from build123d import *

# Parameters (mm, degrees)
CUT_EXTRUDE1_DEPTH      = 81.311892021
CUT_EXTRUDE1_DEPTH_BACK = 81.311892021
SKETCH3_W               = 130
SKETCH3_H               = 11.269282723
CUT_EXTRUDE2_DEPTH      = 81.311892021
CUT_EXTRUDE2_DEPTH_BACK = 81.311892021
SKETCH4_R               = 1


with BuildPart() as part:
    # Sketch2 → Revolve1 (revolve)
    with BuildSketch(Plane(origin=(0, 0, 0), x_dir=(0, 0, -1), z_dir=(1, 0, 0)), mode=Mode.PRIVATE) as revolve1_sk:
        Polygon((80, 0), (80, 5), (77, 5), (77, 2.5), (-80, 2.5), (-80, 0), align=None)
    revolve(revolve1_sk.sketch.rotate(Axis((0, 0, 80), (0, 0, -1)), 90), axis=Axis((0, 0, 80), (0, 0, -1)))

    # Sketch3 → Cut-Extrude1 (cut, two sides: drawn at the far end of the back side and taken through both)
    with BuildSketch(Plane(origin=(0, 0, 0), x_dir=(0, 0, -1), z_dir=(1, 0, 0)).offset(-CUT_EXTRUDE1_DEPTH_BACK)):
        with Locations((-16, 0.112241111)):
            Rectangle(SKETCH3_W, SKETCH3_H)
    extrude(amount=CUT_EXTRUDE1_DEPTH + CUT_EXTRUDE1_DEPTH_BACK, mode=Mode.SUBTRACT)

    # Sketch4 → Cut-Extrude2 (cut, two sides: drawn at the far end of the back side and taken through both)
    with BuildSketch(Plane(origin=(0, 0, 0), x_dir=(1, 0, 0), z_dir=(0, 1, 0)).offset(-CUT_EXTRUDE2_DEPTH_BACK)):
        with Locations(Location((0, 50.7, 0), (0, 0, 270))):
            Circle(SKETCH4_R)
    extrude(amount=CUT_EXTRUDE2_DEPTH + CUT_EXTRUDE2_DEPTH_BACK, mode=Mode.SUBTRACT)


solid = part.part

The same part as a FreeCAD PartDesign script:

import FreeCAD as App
import Part
import Sketcher
from FreeCAD import Vector

doc = App.newDocument("Part")
body = doc.addObject("PartDesign::Body", "Body")

# Sketch on YZ plane
sketch1 = doc.addObject("Sketcher::SketchObject", "Sketch")
body.addObject(sketch1)
sketch1.AttachmentSupport = (doc.YZ_Plane, [""])
sketch1.MapMode = "FlatFace"
sketch1.addGeometry([
    Part.LineSegment(Vector(0, -80, 0), Vector(5, -80, 0)),  # 0
    Part.LineSegment(Vector(5, -80, 0), Vector(5, -77, 0)),  # 1
    Part.LineSegment(Vector(5, -77, 0), Vector(2.5, -77, 0)),  # 2
    Part.LineSegment(Vector(2.5, -77, 0), Vector(2.5, 80, 0)),  # 3
    Part.LineSegment(Vector(2.5, 80, 0), Vector(0, 80, 0)),  # 4
    Part.LineSegment(Vector(0, 80, 0), Vector(0, -80, 0)),  # 5
], False)
sketch1.addConstraint([
    Sketcher.Constraint("Coincident", 0, 2, 1, 1),
    Sketcher.Constraint("Coincident", 1, 2, 2, 1),
    Sketcher.Constraint("Coincident", 2, 2, 3, 1),
    Sketcher.Constraint("Coincident", 3, 2, 4, 1),
    Sketcher.Constraint("Coincident", 4, 2, 5, 1),
    Sketcher.Constraint("Coincident", 5, 2, 0, 1),
    Sketcher.Constraint("Horizontal", 0),
    Sketcher.Constraint("Vertical", 1),
    Sketcher.Constraint("Horizontal", 2),
    Sketcher.Constraint("Vertical", 3),
    Sketcher.Constraint("Horizontal", 4),
    Sketcher.Constraint("Vertical", 5),
    Sketcher.Constraint("Symmetric", 4, 2, 5, 2, -1, 1),
    Sketcher.Constraint("Equal", 2, 4),
    Sketcher.Constraint("DistanceX", 0, 1, 0, 2, 5.0),
    Sketcher.Constraint("DistanceY", 1, 1, 1, 2, 3.0),
    Sketcher.Constraint("DistanceY", 3, 1, 3, 2, 157.0),
])
revolution = doc.addObject("PartDesign::Revolution", "Revolution")
body.addObject(revolution)
revolution.Profile = sketch1
revolution.ReferenceAxis = (sketch1, ["V_Axis"])
revolution.Angle = 360

# Sketch on YZ plane
sketch2 = doc.addObject("Sketcher::SketchObject", "Sketch001")
body.addObject(sketch2)
sketch2.AttachmentSupport = (doc.YZ_Plane, [""])
sketch2.MapMode = "FlatFace"
sketch2.addGeometry([
    Part.LineSegment(Vector(5.746882, 81, 0), Vector(-5.5224, 81, 0)),
    Part.LineSegment(Vector(-5.5224, 81, 0), Vector(-5.5224, -49, 0)),
    Part.LineSegment(Vector(-5.5224, -49, 0), Vector(5.746882, -49, 0)),
    Part.LineSegment(Vector(5.746882, -49, 0), Vector(5.746882, 81, 0)),
], False)
sketch2.addConstraint([
    Sketcher.Constraint("Coincident", 0, 2, 1, 1),
    Sketcher.Constraint("Coincident", 1, 2, 2, 1),
    Sketcher.Constraint("Coincident", 2, 2, 3, 1),
    Sketcher.Constraint("Coincident", 3, 2, 0, 1),
    Sketcher.Constraint("Horizontal", 0),
    Sketcher.Constraint("Vertical", 1),
    Sketcher.Constraint("Horizontal", 2),
    Sketcher.Constraint("Vertical", 3),
    Sketcher.Constraint("DistanceY", 1, 2, 1, 1, 130.0),
    Sketcher.Constraint("DistanceY", -1, 1, 0, 2, 81.0),
    Sketcher.Constraint("DistanceX", 0, 2, -1, 1, 5.5224),
    Sketcher.Constraint("DistanceX", 0, 2, 0, 1, 11.269283),
])
pocket1 = doc.addObject("PartDesign::Pocket", "Pocket")
body.addObject(pocket1)
pocket1.Profile = sketch2
pocket1.Type = "ThroughAll"
pocket1.Midplane = True

# Sketch on XZ plane
sketch3 = doc.addObject("Sketcher::SketchObject", "Sketch002")
body.addObject(sketch3)
sketch3.AttachmentSupport = (doc.XZ_Plane, [""])
sketch3.MapMode = "FlatFace"
sketch3.addGeometry(Part.Circle(Vector(0, -50.7, 0), Vector(0, 0, 1), 1), False)
sketch3.addConstraint([
    Sketcher.Constraint("PointOnObject", 0, 3, -2),
    Sketcher.Constraint("Diameter", 0, 2.0),
    Sketcher.Constraint("DistanceY", 0, 3, -1, 1, 50.7),
])
pocket2 = doc.addObject("PartDesign::Pocket", "Pocket001")
body.addObject(pocket2)
pocket2.Profile = sketch3
pocket2.Type = "ThroughAll"
pocket2.Midplane = True

doc.recompute()
